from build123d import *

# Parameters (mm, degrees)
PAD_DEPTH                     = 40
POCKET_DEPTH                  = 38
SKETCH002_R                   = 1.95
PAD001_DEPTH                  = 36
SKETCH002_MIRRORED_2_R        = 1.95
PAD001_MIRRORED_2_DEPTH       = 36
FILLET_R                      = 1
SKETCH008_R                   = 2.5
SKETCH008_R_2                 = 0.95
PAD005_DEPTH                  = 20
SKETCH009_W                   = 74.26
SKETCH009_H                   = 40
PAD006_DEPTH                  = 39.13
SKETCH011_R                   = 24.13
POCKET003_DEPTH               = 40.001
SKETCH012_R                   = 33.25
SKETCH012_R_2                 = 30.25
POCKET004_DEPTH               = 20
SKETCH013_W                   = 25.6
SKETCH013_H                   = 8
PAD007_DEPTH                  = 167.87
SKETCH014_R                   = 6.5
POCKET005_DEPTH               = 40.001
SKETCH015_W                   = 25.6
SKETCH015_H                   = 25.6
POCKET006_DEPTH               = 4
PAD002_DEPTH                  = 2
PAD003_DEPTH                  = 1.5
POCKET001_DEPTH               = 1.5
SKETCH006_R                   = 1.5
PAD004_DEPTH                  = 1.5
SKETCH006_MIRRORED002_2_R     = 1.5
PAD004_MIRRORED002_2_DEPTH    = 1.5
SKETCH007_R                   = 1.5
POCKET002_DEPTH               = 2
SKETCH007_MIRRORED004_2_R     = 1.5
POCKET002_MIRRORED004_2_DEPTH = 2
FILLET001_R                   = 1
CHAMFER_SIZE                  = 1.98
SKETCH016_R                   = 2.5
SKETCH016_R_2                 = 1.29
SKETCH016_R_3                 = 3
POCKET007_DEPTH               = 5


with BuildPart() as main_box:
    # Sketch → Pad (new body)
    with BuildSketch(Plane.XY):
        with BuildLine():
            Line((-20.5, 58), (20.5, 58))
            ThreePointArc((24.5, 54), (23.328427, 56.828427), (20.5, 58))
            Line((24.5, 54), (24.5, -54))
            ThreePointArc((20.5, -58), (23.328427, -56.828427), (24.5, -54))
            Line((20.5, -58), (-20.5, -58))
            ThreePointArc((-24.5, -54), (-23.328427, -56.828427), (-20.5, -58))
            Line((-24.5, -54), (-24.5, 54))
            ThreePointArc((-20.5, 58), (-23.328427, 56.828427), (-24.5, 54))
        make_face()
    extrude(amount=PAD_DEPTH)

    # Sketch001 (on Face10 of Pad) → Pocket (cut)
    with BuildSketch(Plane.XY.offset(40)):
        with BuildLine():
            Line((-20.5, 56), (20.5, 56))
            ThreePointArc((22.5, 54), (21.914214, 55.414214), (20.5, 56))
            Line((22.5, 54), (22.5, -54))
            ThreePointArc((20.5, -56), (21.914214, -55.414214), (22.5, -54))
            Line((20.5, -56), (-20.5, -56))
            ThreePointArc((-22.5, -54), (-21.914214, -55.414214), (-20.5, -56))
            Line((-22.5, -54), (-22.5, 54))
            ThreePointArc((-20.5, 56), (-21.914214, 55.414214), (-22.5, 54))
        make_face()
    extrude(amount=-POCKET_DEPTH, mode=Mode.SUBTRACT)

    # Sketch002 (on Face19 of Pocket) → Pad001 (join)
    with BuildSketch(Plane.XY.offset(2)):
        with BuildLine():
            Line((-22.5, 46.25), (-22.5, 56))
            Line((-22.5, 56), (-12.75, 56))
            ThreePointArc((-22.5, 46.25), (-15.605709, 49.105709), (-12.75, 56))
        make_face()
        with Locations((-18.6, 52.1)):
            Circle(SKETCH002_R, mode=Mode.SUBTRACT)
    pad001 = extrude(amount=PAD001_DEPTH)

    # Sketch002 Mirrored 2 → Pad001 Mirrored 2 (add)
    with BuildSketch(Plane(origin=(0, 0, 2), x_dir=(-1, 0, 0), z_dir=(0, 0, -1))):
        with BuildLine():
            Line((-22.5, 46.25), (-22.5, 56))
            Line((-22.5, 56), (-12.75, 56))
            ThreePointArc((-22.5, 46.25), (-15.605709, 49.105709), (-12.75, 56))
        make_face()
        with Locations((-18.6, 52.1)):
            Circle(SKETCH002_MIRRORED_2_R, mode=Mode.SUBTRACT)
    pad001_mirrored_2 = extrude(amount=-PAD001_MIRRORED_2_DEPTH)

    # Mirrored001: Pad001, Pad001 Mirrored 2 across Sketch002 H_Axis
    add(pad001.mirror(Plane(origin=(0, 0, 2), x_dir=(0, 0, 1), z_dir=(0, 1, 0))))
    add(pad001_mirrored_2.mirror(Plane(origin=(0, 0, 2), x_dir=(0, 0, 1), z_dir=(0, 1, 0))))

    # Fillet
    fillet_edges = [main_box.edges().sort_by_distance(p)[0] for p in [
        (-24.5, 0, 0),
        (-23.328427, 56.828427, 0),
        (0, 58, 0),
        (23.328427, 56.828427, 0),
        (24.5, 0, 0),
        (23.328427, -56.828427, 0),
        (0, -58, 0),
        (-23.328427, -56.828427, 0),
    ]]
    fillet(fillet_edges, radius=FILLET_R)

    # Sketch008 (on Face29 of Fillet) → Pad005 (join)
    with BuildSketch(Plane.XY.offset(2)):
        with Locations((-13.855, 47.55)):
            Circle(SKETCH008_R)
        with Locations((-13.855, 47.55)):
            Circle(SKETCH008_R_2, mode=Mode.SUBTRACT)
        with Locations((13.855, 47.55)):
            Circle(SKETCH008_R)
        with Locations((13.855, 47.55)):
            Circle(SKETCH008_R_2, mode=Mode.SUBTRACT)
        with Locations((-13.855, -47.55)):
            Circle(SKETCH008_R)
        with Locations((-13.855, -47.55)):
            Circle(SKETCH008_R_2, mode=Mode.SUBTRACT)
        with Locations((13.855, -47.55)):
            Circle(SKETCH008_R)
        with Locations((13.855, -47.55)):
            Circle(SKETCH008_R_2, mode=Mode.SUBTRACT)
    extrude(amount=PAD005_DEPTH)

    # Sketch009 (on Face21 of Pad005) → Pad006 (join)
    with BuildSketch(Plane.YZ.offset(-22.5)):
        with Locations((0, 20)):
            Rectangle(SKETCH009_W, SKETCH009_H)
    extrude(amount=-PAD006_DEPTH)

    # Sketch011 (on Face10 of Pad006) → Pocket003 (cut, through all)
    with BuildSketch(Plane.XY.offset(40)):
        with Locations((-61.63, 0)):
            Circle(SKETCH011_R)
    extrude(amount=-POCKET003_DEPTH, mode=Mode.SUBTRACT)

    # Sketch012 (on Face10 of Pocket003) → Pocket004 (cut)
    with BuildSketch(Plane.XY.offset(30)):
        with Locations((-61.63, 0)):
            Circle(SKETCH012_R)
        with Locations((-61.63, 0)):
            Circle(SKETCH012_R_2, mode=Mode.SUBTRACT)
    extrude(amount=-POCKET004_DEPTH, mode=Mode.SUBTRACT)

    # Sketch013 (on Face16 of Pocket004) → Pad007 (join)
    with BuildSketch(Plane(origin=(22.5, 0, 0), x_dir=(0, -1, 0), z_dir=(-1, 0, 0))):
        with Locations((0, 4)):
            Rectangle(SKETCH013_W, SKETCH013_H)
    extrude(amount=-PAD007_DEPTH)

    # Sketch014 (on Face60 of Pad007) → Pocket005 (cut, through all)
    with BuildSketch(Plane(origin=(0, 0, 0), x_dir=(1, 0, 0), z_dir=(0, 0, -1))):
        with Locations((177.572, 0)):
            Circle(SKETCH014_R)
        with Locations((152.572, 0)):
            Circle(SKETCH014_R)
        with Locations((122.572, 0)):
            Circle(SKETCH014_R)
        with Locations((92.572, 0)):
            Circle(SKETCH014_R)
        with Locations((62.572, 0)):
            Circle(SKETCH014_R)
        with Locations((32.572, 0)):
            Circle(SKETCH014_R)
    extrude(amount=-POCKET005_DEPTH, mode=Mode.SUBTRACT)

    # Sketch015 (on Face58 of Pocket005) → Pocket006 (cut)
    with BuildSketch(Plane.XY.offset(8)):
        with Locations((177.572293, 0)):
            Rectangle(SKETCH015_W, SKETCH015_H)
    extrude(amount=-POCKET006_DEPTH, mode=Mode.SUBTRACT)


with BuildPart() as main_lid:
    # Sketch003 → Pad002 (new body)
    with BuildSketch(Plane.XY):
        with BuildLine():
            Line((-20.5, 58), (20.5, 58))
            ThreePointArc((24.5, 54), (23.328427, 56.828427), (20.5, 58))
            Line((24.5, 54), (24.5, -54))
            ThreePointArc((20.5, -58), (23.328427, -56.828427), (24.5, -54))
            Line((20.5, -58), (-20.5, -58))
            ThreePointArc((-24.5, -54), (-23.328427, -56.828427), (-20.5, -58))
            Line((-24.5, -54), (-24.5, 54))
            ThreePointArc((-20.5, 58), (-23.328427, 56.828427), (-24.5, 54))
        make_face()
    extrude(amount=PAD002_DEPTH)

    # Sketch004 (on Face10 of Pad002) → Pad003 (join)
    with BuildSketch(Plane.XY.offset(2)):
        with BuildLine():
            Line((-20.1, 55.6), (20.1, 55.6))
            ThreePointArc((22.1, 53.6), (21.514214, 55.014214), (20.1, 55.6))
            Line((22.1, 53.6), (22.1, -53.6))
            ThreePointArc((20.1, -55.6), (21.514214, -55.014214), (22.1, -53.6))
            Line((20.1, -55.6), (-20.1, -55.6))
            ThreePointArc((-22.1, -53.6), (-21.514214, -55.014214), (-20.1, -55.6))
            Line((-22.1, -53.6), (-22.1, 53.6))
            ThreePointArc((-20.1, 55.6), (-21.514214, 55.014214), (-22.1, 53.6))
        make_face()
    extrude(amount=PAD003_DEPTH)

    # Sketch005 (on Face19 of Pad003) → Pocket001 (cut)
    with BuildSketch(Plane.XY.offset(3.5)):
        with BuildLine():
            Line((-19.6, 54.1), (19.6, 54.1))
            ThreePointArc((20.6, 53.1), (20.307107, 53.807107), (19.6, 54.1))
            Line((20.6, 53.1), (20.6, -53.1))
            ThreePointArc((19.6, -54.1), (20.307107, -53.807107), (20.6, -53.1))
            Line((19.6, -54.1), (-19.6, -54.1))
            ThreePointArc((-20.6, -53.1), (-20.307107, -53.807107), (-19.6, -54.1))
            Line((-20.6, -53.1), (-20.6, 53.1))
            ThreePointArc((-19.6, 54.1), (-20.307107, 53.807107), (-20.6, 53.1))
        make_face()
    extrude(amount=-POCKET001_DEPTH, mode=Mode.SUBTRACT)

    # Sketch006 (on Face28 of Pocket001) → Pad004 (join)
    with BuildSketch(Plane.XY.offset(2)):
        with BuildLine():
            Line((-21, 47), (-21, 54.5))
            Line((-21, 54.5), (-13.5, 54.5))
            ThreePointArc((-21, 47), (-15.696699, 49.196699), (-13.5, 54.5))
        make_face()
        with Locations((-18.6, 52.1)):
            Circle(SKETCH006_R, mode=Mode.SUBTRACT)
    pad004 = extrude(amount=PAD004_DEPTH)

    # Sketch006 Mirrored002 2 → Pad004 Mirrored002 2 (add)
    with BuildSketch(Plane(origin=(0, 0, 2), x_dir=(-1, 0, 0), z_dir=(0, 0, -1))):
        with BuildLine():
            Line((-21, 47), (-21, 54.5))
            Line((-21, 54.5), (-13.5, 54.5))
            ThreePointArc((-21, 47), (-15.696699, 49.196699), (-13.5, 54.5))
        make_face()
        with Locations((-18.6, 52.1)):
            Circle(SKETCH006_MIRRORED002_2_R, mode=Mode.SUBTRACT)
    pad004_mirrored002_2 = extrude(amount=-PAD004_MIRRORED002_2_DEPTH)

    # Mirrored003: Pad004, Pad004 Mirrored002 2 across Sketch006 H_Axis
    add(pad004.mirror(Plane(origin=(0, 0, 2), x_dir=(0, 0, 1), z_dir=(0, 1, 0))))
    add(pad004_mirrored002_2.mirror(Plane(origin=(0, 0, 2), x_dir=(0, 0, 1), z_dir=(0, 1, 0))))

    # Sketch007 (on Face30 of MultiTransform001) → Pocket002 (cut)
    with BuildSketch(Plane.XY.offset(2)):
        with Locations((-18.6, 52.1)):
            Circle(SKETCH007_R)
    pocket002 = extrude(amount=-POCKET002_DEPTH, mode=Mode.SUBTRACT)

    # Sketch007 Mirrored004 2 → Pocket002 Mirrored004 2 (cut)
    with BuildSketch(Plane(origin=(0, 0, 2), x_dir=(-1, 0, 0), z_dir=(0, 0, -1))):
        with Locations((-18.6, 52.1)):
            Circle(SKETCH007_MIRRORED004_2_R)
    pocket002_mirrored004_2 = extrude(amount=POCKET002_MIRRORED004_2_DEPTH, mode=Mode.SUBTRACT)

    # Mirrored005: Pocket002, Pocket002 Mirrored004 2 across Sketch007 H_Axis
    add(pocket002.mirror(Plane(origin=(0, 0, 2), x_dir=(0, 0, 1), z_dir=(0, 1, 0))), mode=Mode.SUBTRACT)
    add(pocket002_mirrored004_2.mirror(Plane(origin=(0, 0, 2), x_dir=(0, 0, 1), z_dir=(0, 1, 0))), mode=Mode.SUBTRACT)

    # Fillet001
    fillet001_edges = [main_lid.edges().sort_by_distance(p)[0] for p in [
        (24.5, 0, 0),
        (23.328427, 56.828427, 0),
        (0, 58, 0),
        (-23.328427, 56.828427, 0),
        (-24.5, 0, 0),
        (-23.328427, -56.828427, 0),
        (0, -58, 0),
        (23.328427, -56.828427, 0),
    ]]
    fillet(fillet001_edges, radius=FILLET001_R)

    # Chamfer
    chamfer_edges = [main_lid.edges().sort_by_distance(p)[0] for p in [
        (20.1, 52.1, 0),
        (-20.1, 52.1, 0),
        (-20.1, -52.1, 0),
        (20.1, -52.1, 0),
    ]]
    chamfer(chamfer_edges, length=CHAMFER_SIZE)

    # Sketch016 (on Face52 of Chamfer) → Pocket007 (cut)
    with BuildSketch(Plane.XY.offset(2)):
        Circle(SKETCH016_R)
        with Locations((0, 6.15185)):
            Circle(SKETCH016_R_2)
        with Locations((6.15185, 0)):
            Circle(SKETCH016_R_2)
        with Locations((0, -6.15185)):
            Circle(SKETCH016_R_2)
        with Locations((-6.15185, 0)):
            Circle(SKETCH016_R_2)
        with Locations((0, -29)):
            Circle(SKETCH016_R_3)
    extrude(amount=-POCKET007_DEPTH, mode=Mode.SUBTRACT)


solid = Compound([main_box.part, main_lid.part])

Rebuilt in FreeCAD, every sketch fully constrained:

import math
import FreeCAD as App
import Part
import Sketcher
Q = App.Units.Quantity


def edges_at(feature, points):
    """Names of the edges that pass closest to the given points."""
    edges = feature.Shape.Edges
    near = lambda p: min(range(len(edges)), key=lambda i: edges[i].distToShape(Part.Vertex(*p))[0])
    return sorted({f"Edge{near(p) + 1}" for p in points})

doc = App.newDocument("Part")
params = doc.addObject("Spreadsheet::Sheet", "Params")
for row, (alias, value) in enumerate([
    ("sketch1_radius", "4 mm"),
    ("sketch1_width", "41 mm"),
    ("sketch1_height", "108 mm"),
    ("pad1_length", "40 mm"),
    ("sketch2_radius", "1.999999 mm"),
    ("sketch2_width", "41 mm"),
    ("sketch2_height", "108 mm"),
    ("pocket1_length", "38 mm"),
    ("sketch3_diameter", "3.9 mm"),
    ("sketch3_radius", "9.75 mm"),
    ("pad2_length", "36 mm"),
    ("sketch4_diameter", "3.9 mm"),
    ("sketch4_radius", "9.75 mm"),
    ("pad3_length", "36 mm"),
    ("fillet_radius", "1 mm"),
    ("sketch5_diameter", "5 mm"),
    ("sketch5_diameter2", "1.9 mm"),
    ("pad4_length", "20 mm"),
    ("sketch6_height", "40 mm"),
    ("sketch6_width", "74.26 mm"),
    ("pad5_length", "39.13 mm"),
    ("sketch7_diameter", "48.26 mm"),
    ("sketch8_diameter", "66.5 mm"),
    ("sketch8_diameter2", "60.5 mm"),
    ("pocket3_length", "20 mm"),
    ("sketch9_height", "8 mm"),
    ("sketch9_width", "25.6 mm"),
    ("pad6_length", "167.87 mm"),
    ("sketch10_diameter", "13 mm"),
    ("sketch11_width", "25.6 mm"),
    ("pocket5_length", "4 mm"),
    ("sketch12_radius", "4 mm"),
    ("sketch12_width", "41 mm"),
    ("sketch12_height", "108 mm"),
    ("pad7_length", "2 mm"),
    ("sketch13_radius", "1.999999 mm"),
    ("sketch13_width", "40.2 mm"),
    ("sketch13_height", "107.2 mm"),
    ("pad8_length", "1.5 mm"),
    ("sketch14_radius", "0.999999 mm"),
    ("sketch14_width", "39.2 mm"),
    ("sketch14_height", "106.2 mm"),
    ("pocket6_length", "1.5 mm"),
    ("sketch15_diameter", "3 mm"),
    ("sketch15_radius", "7.5 mm"),
    ("pad9_length", "1.5 mm"),
    ("sketch16_diameter", "3 mm"),
    ("sketch16_radius", "7.5 mm"),
    ("pad10_length", "1.5 mm"),
    ("sketch17_diameter", "3 mm"),
    ("pocket7_length", "2 mm"),
    ("sketch18_diameter", "3 mm"),
    ("pocket8_length", "2 mm"),
    ("fillet2_radius", "1 mm"),
    ("chamfer_size", "1.98 mm"),
    ("sketch19_diameter", "5 mm"),
    ("sketch19_diameter2", "6 mm"),
    ("sketch19_diameter3", "2.58 mm"),
    ("pocket9_length", "5 mm"),
], start=1):
    params.set(f"A{row}", alias)
    params.set(f"B{row}", "=" + value)
    params.setAlias(f"B{row}", alias)

body = doc.addObject("PartDesign::Body", "Body")

sketch1 = doc.addObject("Sketcher::SketchObject", "Sketch")
body.addObject(sketch1)
sketch1.AttachmentSupport = (doc.XY_Plane, [""])
sketch1.MapMode = "FlatFace"
sketch1.addGeometry([
    Part.LineSegment(App.Vector(20.5, 58, 0), App.Vector(-20.5, 58, 0)),
    Part.ArcOfCircle(Part.Circle(App.Vector(-20.5, 54, 0), App.Vector(0, 0, 1), 4), math.radians(90), math.radians(180)),
    Part.LineSegment(App.Vector(-24.5, 54, 0), App.Vector(-24.5, -54, 0)),
    Part.ArcOfCircle(Part.Circle(App.Vector(-20.5, -54, 0), App.Vector(0, 0, 1), 4), math.radians(-180), math.radians(-90)),
    Part.LineSegment(App.Vector(-20.5, -58, 0), App.Vector(20.5, -58, 0)),
    Part.ArcOfCircle(Part.Circle(App.Vector(20.5, -54, 0), App.Vector(0, 0, 1), 4), math.radians(-90), math.radians(0)),
    Part.LineSegment(App.Vector(24.5, -54, 0), App.Vector(24.5, 54, 0)),
    Part.ArcOfCircle(Part.Circle(App.Vector(20.5, 54, 0), App.Vector(0, 0, 1), 4), math.radians(0), math.radians(90)),
], False)
sketch1.addConstraint([
    Sketcher.Constraint("Tangent", 0, 2, 1, 1),
    Sketcher.Constraint("Tangent", 1, 2, 2, 1),
    Sketcher.Constraint("Tangent", 2, 2, 3, 1),
    Sketcher.Constraint("Tangent", 3, 2, 4, 1),
    Sketcher.Constraint("Tangent", 4, 2, 5, 1),
    Sketcher.Constraint("Tangent", 5, 2, 6, 1),
    Sketcher.Constraint("Tangent", 6, 2, 7, 1),
    Sketcher.Constraint("Tangent", 7, 2, 0, 1),
    Sketcher.Constraint("Horizontal", 0),
    Sketcher.Constraint("Vertical", 2),
    Sketcher.Constraint("Horizontal", 4),
    Sketcher.Constraint("Vertical", 6),
    Sketcher.Constraint("Equal", 1, 3),
    Sketcher.Constraint("Equal", 3, 5),
    Sketcher.Constraint("Equal", 5, 7),
    Sketcher.Constraint("Symmetric", 1, 3, 5, 3, -1, 1),
    Sketcher.Constraint("Radius", 1, Q("4 mm")),
    Sketcher.Constraint("DistanceX", 0, 2, 0, 1, Q("41 mm")),
    Sketcher.Constraint("DistanceY", 2, 2, 2, 1, Q("108 mm")),
])
sketch1.setExpression("Constraints[16]", "Params.sketch1_radius")
sketch1.setExpression("Constraints[17]", "Params.sketch1_width")
sketch1.setExpression("Constraints[18]", "Params.sketch1_height")
pad1 = doc.addObject("PartDesign::Pad", "Pad")
body.addObject(pad1)
pad1.Profile = sketch1
pad1.setExpression("Length", "Params.pad1_length")

sketch2 = doc.addObject("Sketcher::SketchObject", "Sketch001")
body.addObject(sketch2)
sketch2.AttachmentSupport = (doc.XY_Plane, [""])
sketch2.MapMode = "FlatFace"
sketch2.AttachmentOffset = App.Placement(App.Vector(0, 0, 40), App.Rotation())
sketch2.addGeometry([
    Part.LineSegment(App.Vector(20.5, 56, 0), App.Vector(-20.5, 56, 0)),
    Part.ArcOfCircle(Part.Circle(App.Vector(-20.5, 54, 0), App.Vector(0, 0, 1), 2), math.radians(90), math.radians(180)),
    Part.LineSegment(App.Vector(-22.5, 54, 0), App.Vector(-22.5, -54, 0)),
    Part.ArcOfCircle(Part.Circle(App.Vector(-20.5, -54, 0), App.Vector(0, 0, 1), 2), math.radians(180), math.radians(270)),
    Part.LineSegment(App.Vector(-20.5, -56, 0), App.Vector(20.5, -56, 0)),
    Part.ArcOfCircle(Part.Circle(App.Vector(20.5, -54, 0), App.Vector(0, 0, 1), 2), math.radians(-90), math.radians(0)),
    Part.LineSegment(App.Vector(22.5, -54, 0), App.Vector(22.5, 54, 0)),
    Part.ArcOfCircle(Part.Circle(App.Vector(20.5, 54, 0), App.Vector(0, 0, 1), 2), math.radians(0), math.radians(90)),
], False)
sketch2.addConstraint([
    Sketcher.Constraint("Tangent", 0, 2, 1, 1),
    Sketcher.Constraint("Tangent", 1, 2, 2, 1),
    Sketcher.Constraint("Tangent", 2, 2, 3, 1),
    Sketcher.Constraint("Tangent", 3, 2, 4, 1),
    Sketcher.Constraint("Tangent", 4, 2, 5, 1),
    Sketcher.Constraint("Tangent", 5, 2, 6, 1),
    Sketcher.Constraint("Tangent", 6, 2, 7, 1),
    Sketcher.Constraint("Tangent", 7, 2, 0, 1),
    Sketcher.Constraint("Horizontal", 0),
    Sketcher.Constraint("Vertical", 2),
    Sketcher.Constraint("Horizontal", 4),
    Sketcher.Constraint("Vertical", 6),
    Sketcher.Constraint("Equal", 1, 3),
    Sketcher.Constraint("Equal", 3, 5),
    Sketcher.Constraint("Equal", 5, 7),
    Sketcher.Constraint("Symmetric", 1, 3, 5, 3, -1, 1),
    Sketcher.Constraint("Radius", 1, Q("1.999999 mm")),
    Sketcher.Constraint("DistanceX", 0, 2, 0, 1, Q("41 mm")),
    Sketcher.Constraint("DistanceY", 2, 2, 2, 1, Q("108 mm")),
])
sketch2.setExpression("Constraints[16]", "Params.sketch2_radius")
sketch2.setExpression("Constraints[17]", "Params.sketch2_width")
sketch2.setExpression("Constraints[18]", "Params.sketch2_height")
pocket1 = doc.addObject("PartDesign::Pocket", "Pocket")
body.addObject(pocket1)
pocket1.Profile = sketch2
pocket1.setExpression("Length", "Params.pocket1_length")

sketch3 = doc.addObject("Sketcher::SketchObject", "Sketch002")
body.addObject(sketch3)
sketch3.AttachmentSupport = (doc.XY_Plane, [""])
sketch3.MapMode = "FlatFace"
sketch3.AttachmentOffset = App.Placement(App.Vector(0, 0, 2), App.Rotation())
sketch3.addGeometry([
    Part.LineSegment(App.Vector(-22.5, 56, 0), App.Vector(-22.5, 46.2, 0)),
    Part.ArcOfCircle(Part.Circle(App.Vector(-22.5, 56, 0), App.Vector(0, 0, 1), 9.8), math.radians(-90), math.radians(0)),
    Part.LineSegment(App.Vector(-12.8, 56, 0), App.Vector(-22.5, 56, 0)),
    Part.Circle(App.Vector(-18.6, 52.1, 0), App.Vector(0, 0, 1), 1.9),
], False)
sketch3.addConstraint([
    Sketcher.Constraint("Coincident", 0, 2, 1, 1),
    Sketcher.Constraint("Coincident", 1, 2, 2, 1),
    Sketcher.Constraint("Coincident", 2, 2, 0, 1),
    Sketcher.Constraint("Vertical", 0),
    Sketcher.Constraint("Horizontal", 2),
    Sketcher.Constraint("Coincident", 2, 2, 1, 3),
    Sketcher.Constraint("Diameter", 3, Q("3.9 mm")),
    Sketcher.Constraint("Radius", 1, Q("9.75 mm")),
    Sketcher.Constraint("DistanceY", -1, 1, 1, 3, Q("56 mm")),
    Sketcher.Constraint("DistanceX", 1, 3, -1, 1, Q("22.5 mm")),
    Sketcher.Constraint("DistanceX", 3, 3, -1, 1, Q("18.6 mm")),
    Sketcher.Constraint("DistanceY", -1, 1, 3, 3, Q("52.1 mm")),
])
sketch3.setExpression("Constraints[6]", "Params.sketch3_diameter")
sketch3.setExpression("Constraints[7]", "Params.sketch3_radius")
pad2 = doc.addObject("PartDesign::Pad", "Pad001")
body.addObject(pad2)
pad2.Profile = sketch3
pad2.setExpression("Length", "Params.pad2_length")

sketch4 = doc.addObject("Sketcher::SketchObject", "Sketch003")
body.addObject(sketch4)
sketch4.AttachmentSupport = (doc.XY_Plane, [""])
sketch4.MapMode = "FlatFace"
sketch4.AttachmentOffset = App.Placement(App.Vector(0, 0, 2), App.Rotation())
sketch4.addGeometry([
    Part.LineSegment(App.Vector(22.5, 56, 0), App.Vector(22.5, 46.2, 0)),
    Part.ArcOfCircle(Part.Circle(App.Vector(22.5, 56, 0), App.Vector(0, 0, 1), 9.8), math.radians(-180), math.radians(-90)),
    Part.LineSegment(App.Vector(12.8, 56, 0), App.Vector(22.5, 56, 0)),
    Part.Circle(App.Vector(18.6, 52.1, 0), App.Vector(0, 0, 1), 1.9),
], False)
sketch4.addConstraint([
    Sketcher.Constraint("Coincident", 0, 2, 1, 2),
    Sketcher.Constraint("Coincident", 1, 1, 2, 1),
    Sketcher.Constraint("Coincident", 2, 2, 0, 1),
    Sketcher.Constraint("Vertical", 0),
    Sketcher.Constraint("Horizontal", 2),
    Sketcher.Constraint("Coincident", 2, 2, 1, 3),
    Sketcher.Constraint("Diameter", 3, Q("3.9 mm")),
    Sketcher.Constraint("Radius", 1, Q("9.75 mm")),
    Sketcher.Constraint("DistanceY", -1, 1, 1, 3, Q("56 mm")),
    Sketcher.Constraint("DistanceX", -1, 1, 1, 3, Q("22.5 mm")),
    Sketcher.Constraint("DistanceX", -1, 1, 3, 3, Q("18.6 mm")),
    Sketcher.Constraint("DistanceY", -1, 1, 3, 3, Q("52.1 mm")),
])
sketch4.setExpression("Constraints[6]", "Params.sketch4_diameter")
sketch4.setExpression("Constraints[7]", "Params.sketch4_radius")
pad3 = doc.addObject("PartDesign::Pad", "Pad002")
body.addObject(pad3)
pad3.Profile = sketch4
pad3.setExpression("Length", "Params.pad3_length")
doc.recompute()

mirrored = doc.addObject("PartDesign::Mirrored", "Mirrored")
body.addObject(mirrored)
mirrored.Originals = [pad2, pad3]
mirrored.MirrorPlane = (doc.XZ_Plane, [""])
body.Tip = mirrored
doc.recompute()

fillet = doc.addObject("PartDesign::Fillet", "Fillet")
body.addObject(fillet)
fillet.Base = (mirrored, edges_at(mirrored, [
    (-24.5, 0, 0),
    (-23.328, 56.828, 0),
    (0, 58, 0),
    (23.328, 56.828, 0),
    (24.5, 0, 0),
    (23.328, -56.828, 0),
    (0, -58, 0),
    (-23.328, -56.828, 0),
]))
fillet.setExpression("Radius", "Params.fillet_radius")

sketch5 = doc.addObject("Sketcher::SketchObject", "Sketch004")
body.addObject(sketch5)
sketch5.AttachmentSupport = (doc.XY_Plane, [""])
sketch5.MapMode = "FlatFace"
sketch5.AttachmentOffset = App.Placement(App.Vector(0, 0, 2), App.Rotation())
sketch5.addGeometry([
    Part.Circle(App.Vector(-13.9, 47.5, 0), App.Vector(0, 0, 1), 2.5),
    Part.Circle(App.Vector(-13.9, 47.5, 0), App.Vector(0, 0, 1), 0.9),
    Part.Circle(App.Vector(13.9, 47.5, 0), App.Vector(0, 0, 1), 2.5),
    Part.Circle(App.Vector(13.9, 47.5, 0), App.Vector(0, 0, 1), 0.9),
    Part.Circle(App.Vector(-13.9, -47.5, 0), App.Vector(0, 0, 1), 2.5),
    Part.Circle(App.Vector(-13.9, -47.5, 0), App.Vector(0, 0, 1), 0.9),
    Part.Circle(App.Vector(13.9, -47.5, 0), App.Vector(0, 0, 1), 2.5),
    Part.Circle(App.Vector(13.9, -47.5, 0), App.Vector(0, 0, 1), 0.9),
], False)
sketch5.addConstraint([
    Sketcher.Constraint("Coincident", 1, 3, 0, 3),
    Sketcher.Constraint("Coincident", 3, 3, 2, 3),
    Sketcher.Constraint("Coincident", 5, 3, 4, 3),
    Sketcher.Constraint("Coincident", 7, 3, 6, 3),
    Sketcher.Constraint("Equal", 0, 2),
    Sketcher.Constraint("Equal", 1, 3),
    Sketcher.Constraint("Equal", 2, 4),
    Sketcher.Constraint("Equal", 3, 5),
    Sketcher.Constraint("Equal", 4, 6),
    Sketcher.Constraint("Equal", 5, 7),
    Sketcher.Constraint("Symmetric", 2, 3, 4, 3, -1, 1),
    Sketcher.Constraint("Symmetric", 0, 3, 6, 3, -1, 1),
    Sketcher.Constraint("Symmetric", 0, 3, 2, 3, -2),
    Sketcher.Constraint("Diameter", 0, Q("5 mm")),
    Sketcher.Constraint("Diameter", 1, Q("1.9 mm")),
    Sketcher.Constraint("DistanceY", 4, 3, 0, 3, Q("95.1 mm")),
    Sketcher.Constraint("DistanceX", 0, 3, 2, 3, Q("27.71 mm")),
])
sketch5.setExpression("Constraints[13]", "Params.sketch5_diameter")
sketch5.setExpression("Constraints[14]", "Params.sketch5_diameter2")
pad4 = doc.addObject("PartDesign::Pad", "Pad003")
body.addObject(pad4)
pad4.Profile = sketch5
pad4.setExpression("Length", "Params.pad4_length")

sketch6 = doc.addObject("Sketcher::SketchObject", "Sketch005")
body.addObject(sketch6)
sketch6.AttachmentSupport = (doc.YZ_Plane, [""])
sketch6.MapMode = "FlatFace"
sketch6.AttachmentOffset = App.Placement(App.Vector(0, 0, -22.5), App.Rotation())
sketch6.addGeometry([
    Part.LineSegment(App.Vector(-37, 40, 0), App.Vector(-37, 0, 0)),
    Part.LineSegment(App.Vector(-37, 0, 0), App.Vector(37, 0, 0)),
    Part.LineSegment(App.Vector(37, 0, 0), App.Vector(37, 40, 0)),
    Part.LineSegment(App.Vector(37, 40, 0), App.Vector(-37, 40, 0)),
], False)
sketch6.addConstraint([
    Sketcher.Constraint("Coincident", 0, 2, 1, 1),
    Sketcher.Constraint("Coincident", 1, 2, 2, 1),
    Sketcher.Constraint("Coincident", 2, 2, 3, 1),
    Sketcher.Constraint("Coincident", 3, 2, 0, 1),
    Sketcher.Constraint("Vertical", 0),
    Sketcher.Constraint("Horizontal", 1),
    Sketcher.Constraint("Vertical", 2),
    Sketcher.Constraint("Horizontal", 3),
    Sketcher.Constraint("Symmetric", 0, 2, 1, 2, -1, 1),
    Sketcher.Constraint("DistanceY", 0, 2, 0, 1, Q("40 mm")),
    Sketcher.Constraint("DistanceX", 1, 1, 1, 2, Q("74.26 mm")),
])
sketch6.setExpression("Constraints[9]", "Params.sketch6_height")
sketch6.setExpression("Constraints[10]", "Params.sketch6_width")
pad5 = doc.addObject("PartDesign::Pad", "Pad004")
body.addObject(pad5)
pad5.Profile = sketch6
pad5.setExpression("Length", "Params.pad5_length")
pad5.Reversed = True

sketch7 = doc.addObject("Sketcher::SketchObject", "Sketch006")
body.addObject(sketch7)
sketch7.AttachmentSupport = (doc.XY_Plane, [""])
sketch7.MapMode = "FlatFace"
sketch7.AttachmentOffset = App.Placement(App.Vector(0, 0, 40), App.Rotation())
sketch7.addGeometry(Part.Circle(App.Vector(-62, 0, 0), App.Vector(0, 0, 1), 24), False)
sketch7.addConstraint([
    Sketcher.Constraint("PointOnObject", 0, 3, -1),
    Sketcher.Constraint("Diameter", 0, Q("48.26 mm")),
    Sketcher.Constraint("DistanceX", 0, 3, -1, 1, Q("61.63 mm")),
])
sketch7.setExpression("Constraints[1]", "Params.sketch7_diameter")
pocket2 = doc.addObject("PartDesign::Pocket", "Pocket001")
body.addObject(pocket2)
pocket2.Profile = sketch7
pocket2.Type = "ThroughAll"

sketch8 = doc.addObject("Sketcher::SketchObject", "Sketch007")
body.addObject(sketch8)
sketch8.AttachmentSupport = (doc.XY_Plane, [""])
sketch8.MapMode = "FlatFace"
sketch8.AttachmentOffset = App.Placement(App.Vector(0, 0, 30), App.Rotation())
sketch8.addGeometry([
    Part.Circle(App.Vector(-62, 0, 0), App.Vector(0, 0, 1), 33),
    Part.Circle(App.Vector(-62, 0, 0), App.Vector(0, 0, 1), 30),
], False)
sketch8.addConstraint([
    Sketcher.Constraint("Coincident", 1, 3, 0, 3),
    Sketcher.Constraint("PointOnObject", 0, 3, -1),
    Sketcher.Constraint("Diameter", 0, Q("66.5 mm")),
    Sketcher.Constraint("Diameter", 1, Q("60.5 mm")),
    Sketcher.Constraint("DistanceX", 0, 3, -1, 1, Q("61.63 mm")),
])
sketch8.setExpression("Constraints[2]", "Params.sketch8_diameter")
sketch8.setExpression("Constraints[3]", "Params.sketch8_diameter2")
pocket3 = doc.addObject("PartDesign::Pocket", "Pocket002")
body.addObject(pocket3)
pocket3.Profile = sketch8
pocket3.setExpression("Length", "Params.pocket3_length")

sketch9 = doc.addObject("Sketcher::SketchObject", "Sketch008")
body.addObject(sketch9)
sketch9.AttachmentSupport = (doc.YZ_Plane, [""])
sketch9.MapMode = "FlatFace"
sketch9.AttachmentOffset = App.Placement(App.Vector(0, 0, 22.5), App.Rotation())
sketch9.addGeometry([
    Part.LineSegment(App.Vector(13, 8, 0), App.Vector(13, 0, 0)),
    Part.LineSegment(App.Vector(13, 0, 0), App.Vector(-13, 0, 0)),
    Part.LineSegment(App.Vector(-13, 0, 0), App.Vector(-13, 8, 0)),
    Part.LineSegment(App.Vector(-13, 8, 0), App.Vector(13, 8, 0)),
], False)
sketch9.addConstraint([
    Sketcher.Constraint("Coincident", 0, 2, 1, 1),
    Sketcher.Constraint("Coincident", 1, 2, 2, 1),
    Sketcher.Constraint("Coincident", 2, 2, 3, 1),
    Sketcher.Constraint("Coincident", 3, 2, 0, 1),
    Sketcher.Constraint("Vertical", 0),
    Sketcher.Constraint("Horizontal", 1),
    Sketcher.Constraint("Vertical", 2),
    Sketcher.Constraint("Horizontal", 3),
    Sketcher.Constraint("Symmetric", 0, 2, 1, 2, -1, 1),
    Sketcher.Constraint("DistanceY", 0, 2, 0, 1, Q("8 mm")),
    Sketcher.Constraint("DistanceX", 1, 2, 1, 1, Q("25.6 mm")),
])
sketch9.setExpression("Constraints[9]", "Params.sketch9_height")
sketch9.setExpression("Constraints[10]", "Params.sketch9_width")
pad6 = doc.addObject("PartDesign::Pad", "Pad005")
body.addObject(pad6)
pad6.Profile = sketch9
pad6.setExpression("Length", "Params.pad6_length")

sketch10 = doc.addObject("Sketcher::SketchObject", "Sketch009")
body.addObject(sketch10)
sketch10.AttachmentSupport = (doc.XY_Plane, [""])
sketch10.MapMode = "FlatFace"
sketch10.addGeometry([
    Part.Circle(App.Vector(178, 0, 0), App.Vector(0, 0, 1), 6),
    Part.Circle(App.Vector(153, 0, 0), App.Vector(0, 0, 1), 6),
    Part.Circle(App.Vector(123, 0, 0), App.Vector(0, 0, 1), 6),
    Part.Circle(App.Vector(93, 0, 0), App.Vector(0, 0, 1), 6),
    Part.Circle(App.Vector(63, 0, 0), App.Vector(0, 0, 1), 6),
    Part.Circle(App.Vector(33, 0, 0), App.Vector(0, 0, 1), 6),
], False)
sketch10.addConstraint([
    Sketcher.Constraint("Equal", 0, 1),
    Sketcher.Constraint("Equal", 1, 2),
    Sketcher.Constraint("Equal", 2, 3),
    Sketcher.Constraint("Equal", 3, 4),
    Sketcher.Constraint("Equal", 4, 5),
    Sketcher.Constraint("PointOnObject", 0, 3, -1),
    Sketcher.Constraint("PointOnObject", 1, 3, -1),
    Sketcher.Constraint("PointOnObject", 2, 3, -1),
    Sketcher.Constraint("PointOnObject", 3, 3, -1),
    Sketcher.Constraint("PointOnObject", 4, 3, -1),
    Sketcher.Constraint("PointOnObject", 5, 3, -1),
    Sketcher.Constraint("Diameter", 0, Q("13 mm")),
    Sketcher.Constraint("DistanceX", 1, 3, 0, 3, Q("25 mm")),
    Sketcher.Constraint("DistanceX", 2, 3, 1, 3, Q("30 mm")),
    Sketcher.Constraint("DistanceX", 3, 3, 2, 3, Q("30 mm")),
    Sketcher.Constraint("DistanceX", 4, 3, 3, 3, Q("30 mm")),
    Sketcher.Constraint("DistanceX", 5, 3, 4, 3, Q("30 mm")),
    Sketcher.Constraint("DistanceX", -1, 1, 0, 3, Q("177.572 mm")),
])
sketch10.setExpression("Constraints[11]", "Params.sketch10_diameter")
pocket4 = doc.addObject("PartDesign::Pocket", "Pocket003")
body.addObject(pocket4)
pocket4.Profile = sketch10
pocket4.Type = "ThroughAll"
pocket4.Reversed = True

sketch11 = doc.addObject("Sketcher::SketchObject", "Sketch010")
body.addObject(sketch11)
sketch11.AttachmentSupport = (doc.XY_Plane, [""])
sketch11.MapMode = "FlatFace"
sketch11.AttachmentOffset = App.Placement(App.Vector(0, 0, 8), App.Rotation())
sketch11.addGeometry([
    Part.LineSegment(App.Vector(165, 13, 0), App.Vector(165, -13, 0)),
    Part.LineSegment(App.Vector(165, -13, 0), App.Vector(190, -13, 0)),
    Part.LineSegment(App.Vector(190, -13, 0), App.Vector(190, 13, 0)),
    Part.LineSegment(App.Vector(190, 13, 0), App.Vector(165, 13, 0)),
], False)
sketch11.addConstraint([
    Sketcher.Constraint("Coincident", 0, 2, 1, 1),
    Sketcher.Constraint("Coincident", 1, 2, 2, 1),
    Sketcher.Constraint("Coincident", 2, 2, 3, 1),
    Sketcher.Constraint("Coincident", 3, 2, 0, 1),
    Sketcher.Constraint("Vertical", 0),
    Sketcher.Constraint("Horizontal", 1),
    Sketcher.Constraint("Vertical", 2),
    Sketcher.Constraint("Horizontal", 3),
    Sketcher.Constraint("Equal", 3, 0),
    Sketcher.Constraint("DistanceX", 1, 1, 1, 2, Q("25.6 mm")),
    Sketcher.Constraint("DistanceY", 0, 2, -1, 1, Q("12.8 mm")),
    Sketcher.Constraint("DistanceX", -1, 1, 0, 2, Q("164.772293 mm")),
])
sketch11.setExpression("Constraints[9]", "Params.sketch11_width")
pocket5 = doc.addObject("PartDesign::Pocket", "Pocket004")
body.addObject(pocket5)
pocket5.Profile = sketch11
pocket5.setExpression("Length", "Params.pocket5_length")
body2 = doc.addObject("PartDesign::Body", "Body001")

sketch12 = doc.addObject("Sketcher::SketchObject", "Sketch011")
body2.addObject(sketch12)
sketch12.AttachmentSupport = (doc.getObject("XY_Plane001"), [""])
sketch12.MapMode = "FlatFace"
sketch12.addGeometry([
    Part.LineSegment(App.Vector(20.5, 58, 0), App.Vector(-20.5, 58, 0)),
    Part.ArcOfCircle(Part.Circle(App.Vector(-20.5, 54, 0), App.Vector(0, 0, 1), 4), math.radians(90), math.radians(180)),
    Part.LineSegment(App.Vector(-24.5, 54, 0), App.Vector(-24.5, -54, 0)),
    Part.ArcOfCircle(Part.Circle(App.Vector(-20.5, -54, 0), App.Vector(0, 0, 1), 4), math.radians(-180), math.radians(-90)),
    Part.LineSegment(App.Vector(-20.5, -58, 0), App.Vector(20.5, -58, 0)),
    Part.ArcOfCircle(Part.Circle(App.Vector(20.5, -54, 0), App.Vector(0, 0, 1), 4), math.radians(-90), math.radians(0)),
    Part.LineSegment(App.Vector(24.5, -54, 0), App.Vector(24.5, 54, 0)),
    Part.ArcOfCircle(Part.Circle(App.Vector(20.5, 54, 0), App.Vector(0, 0, 1), 4), math.radians(0), math.radians(90)),
], False)
sketch12.addConstraint([
    Sketcher.Constraint("Tangent", 0, 2, 1, 1),
    Sketcher.Constraint("Tangent", 1, 2, 2, 1),
    Sketcher.Constraint("Tangent", 2, 2, 3, 1),
    Sketcher.Constraint("Tangent", 3, 2, 4, 1),
    Sketcher.Constraint("Tangent", 4, 2, 5, 1),
    Sketcher.Constraint("Tangent", 5, 2, 6, 1),
    Sketcher.Constraint("Tangent", 6, 2, 7, 1),
    Sketcher.Constraint("Tangent", 7, 2, 0, 1),
    Sketcher.Constraint("Horizontal", 0),
    Sketcher.Constraint("Vertical", 2),
    Sketcher.Constraint("Horizontal", 4),
    Sketcher.Constraint("Vertical", 6),
    Sketcher.Constraint("Equal", 1, 3),
    Sketcher.Constraint("Equal", 3, 5),
    Sketcher.Constraint("Equal", 5, 7),
    Sketcher.Constraint("Symmetric", 1, 3, 5, 3, -1, 1),
    Sketcher.Constraint("Radius", 1, Q("4 mm")),
    Sketcher.Constraint("DistanceX", 0, 2, 0, 1, Q("41 mm")),
    Sketcher.Constraint("DistanceY", 2, 2, 2, 1, Q("108 mm")),
])
sketch12.setExpression("Constraints[16]", "Params.sketch12_radius")
sketch12.setExpression("Constraints[17]", "Params.sketch12_width")
sketch12.setExpression("Constraints[18]", "Params.sketch12_height")
pad7 = doc.addObject("PartDesign::Pad", "Pad006")
body2.addObject(pad7)
pad7.Profile = sketch12
pad7.setExpression("Length", "Params.pad7_length")

sketch13 = doc.addObject("Sketcher::SketchObject", "Sketch012")
body2.addObject(sketch13)
sketch13.AttachmentSupport = (doc.getObject("XY_Plane001"), [""])
sketch13.MapMode = "FlatFace"
sketch13.AttachmentOffset = App.Placement(App.Vector(0, 0, 2), App.Rotation())
sketch13.addGeometry([
    Part.LineSegment(App.Vector(20.1, 55.6, 0), App.Vector(-20.1, 55.6, 0)),
    Part.ArcOfCircle(Part.Circle(App.Vector(-20.1, 53.6, 0), App.Vector(0, 0, 1), 2), math.radians(90), math.radians(180)),
    Part.LineSegment(App.Vector(-22.1, 53.6, 0), App.Vector(-22.1, -53.6, 0)),
    Part.ArcOfCircle(Part.Circle(App.Vector(-20.1, -53.6, 0), App.Vector(0, 0, 1), 2), math.radians(180), math.radians(270)),
    Part.LineSegment(App.Vector(-20.1, -55.6, 0), App.Vector(20.1, -55.6, 0)),
    Part.ArcOfCircle(Part.Circle(App.Vector(20.1, -53.6, 0), App.Vector(0, 0, 1), 2), math.radians(-90), math.radians(0)),
    Part.LineSegment(App.Vector(22.1, -53.6, 0), App.Vector(22.1, 53.6, 0)),
    Part.ArcOfCircle(Part.Circle(App.Vector(20.1, 53.6, 0), App.Vector(0, 0, 1), 2), math.radians(0), math.radians(90)),
], False)
sketch13.addConstraint([
    Sketcher.Constraint("Tangent", 0, 2, 1, 1),
    Sketcher.Constraint("Tangent", 1, 2, 2, 1),
    Sketcher.Constraint("Tangent", 2, 2, 3, 1),
    Sketcher.Constraint("Tangent", 3, 2, 4, 1),
    Sketcher.Constraint("Tangent", 4, 2, 5, 1),
    Sketcher.Constraint("Tangent", 5, 2, 6, 1),
    Sketcher.Constraint("Tangent", 6, 2, 7, 1),
    Sketcher.Constraint("Tangent", 7, 2, 0, 1),
    Sketcher.Constraint("Horizontal", 0),
    Sketcher.Constraint("Vertical", 2),
    Sketcher.Constraint("Horizontal", 4),
    Sketcher.Constraint("Vertical", 6),
    Sketcher.Constraint("Equal", 1, 3),
    Sketcher.Constraint("Equal", 3, 5),
    Sketcher.Constraint("Equal", 5, 7),
    Sketcher.Constraint("Symmetric", 1, 3, 5, 3, -1, 1),
    Sketcher.Constraint("Radius", 1, Q("1.999999 mm")),
    Sketcher.Constraint("DistanceX", 0, 2, 0, 1, Q("40.2 mm")),
    Sketcher.Constraint("DistanceY", 2, 2, 2, 1, Q("107.2 mm")),
])
sketch13.setExpression("Constraints[16]", "Params.sketch13_radius")
sketch13.setExpression("Constraints[17]", "Params.sketch13_width")
sketch13.setExpression("Constraints[18]", "Params.sketch13_height")
pad8 = doc.addObject("PartDesign::Pad", "Pad007")
body2.addObject(pad8)
pad8.Profile = sketch13
pad8.setExpression("Length", "Params.pad8_length")

sketch14 = doc.addObject("Sketcher::SketchObject", "Sketch013")
body2.addObject(sketch14)
sketch14.AttachmentSupport = (doc.getObject("XY_Plane001"), [""])
sketch14.MapMode = "FlatFace"
sketch14.AttachmentOffset = App.Placement(App.Vector(0, 0, 3.5), App.Rotation())
sketch14.addGeometry([
    Part.LineSegment(App.Vector(19.6, 54.1, 0), App.Vector(-19.6, 54.1, 0)),
    Part.ArcOfCircle(Part.Circle(App.Vector(-19.6, 53.1, 0), App.Vector(0, 0, 1), 1), math.radians(90), math.radians(180)),
    Part.LineSegment(App.Vector(-20.6, 53.1, 0), App.Vector(-20.6, -53.1, 0)),
    Part.ArcOfCircle(Part.Circle(App.Vector(-19.6, -53.1, 0), App.Vector(0, 0, 1), 1), math.radians(180), math.radians(270)),
    Part.LineSegment(App.Vector(-19.6, -54.1, 0), App.Vector(19.6, -54.1, 0)),
    Part.ArcOfCircle(Part.Circle(App.Vector(19.6, -53.1, 0), App.Vector(0, 0, 1), 1), math.radians(-90), math.radians(0)),
    Part.LineSegment(App.Vector(20.6, -53.1, 0), App.Vector(20.6, 53.1, 0)),
    Part.ArcOfCircle(Part.Circle(App.Vector(19.6, 53.1, 0), App.Vector(0, 0, 1), 1), math.radians(0), math.radians(90)),
], False)
sketch14.addConstraint([
    Sketcher.Constraint("Tangent", 0, 2, 1, 1),
    Sketcher.Constraint("Tangent", 1, 2, 2, 1),
    Sketcher.Constraint("Tangent", 2, 2, 3, 1),
    Sketcher.Constraint("Tangent", 3, 2, 4, 1),
    Sketcher.Constraint("Tangent", 4, 2, 5, 1),
    Sketcher.Constraint("Tangent", 5, 2, 6, 1),
    Sketcher.Constraint("Tangent", 6, 2, 7, 1),
    Sketcher.Constraint("Tangent", 7, 2, 0, 1),
    Sketcher.Constraint("Horizontal", 0),
    Sketcher.Constraint("Vertical", 2),
    Sketcher.Constraint("Horizontal", 4),
    Sketcher.Constraint("Vertical", 6),
    Sketcher.Constraint("Equal", 1, 3),
    Sketcher.Constraint("Equal", 3, 5),
    Sketcher.Constraint("Equal", 5, 7),
    Sketcher.Constraint("Symmetric", 1, 3, 5, 3, -1, 1),
    Sketcher.Constraint("Radius", 1, Q("0.999999 mm")),
    Sketcher.Constraint("DistanceX", 0, 2, 0, 1, Q("39.2 mm")),
    Sketcher.Constraint("DistanceY", 2, 2, 2, 1, Q("106.2 mm")),
])
sketch14.setExpression("Constraints[16]", "Params.sketch14_radius")
sketch14.setExpression("Constraints[17]", "Params.sketch14_width")
sketch14.setExpression("Constraints[18]", "Params.sketch14_height")
pocket6 = doc.addObject("PartDesign::Pocket", "Pocket005")
body2.addObject(pocket6)
pocket6.Profile = sketch14
pocket6.setExpression("Length", "Params.pocket6_length")

sketch15 = doc.addObject("Sketcher::SketchObject", "Sketch014")
body2.addObject(sketch15)
sketch15.AttachmentSupport = (doc.getObject("XY_Plane001"), [""])
sketch15.MapMode = "FlatFace"
sketch15.AttachmentOffset = App.Placement(App.Vector(0, 0, 2), App.Rotation())
sketch15.addGeometry([
    Part.LineSegment(App.Vector(-21, 54.5, 0), App.Vector(-21, 47, 0)),
    Part.ArcOfCircle(Part.Circle(App.Vector(-21, 54.5, 0), App.Vector(0, 0, 1), 7.5), math.radians(-90), math.radians(0)),
    Part.LineSegment(App.Vector(-13.5, 54.5, 0), App.Vector(-21, 54.5, 0)),
    Part.Circle(App.Vector(-18.6, 52.1, 0), App.Vector(0, 0, 1), 1.5),
], False)
sketch15.addConstraint([
    Sketcher.Constraint("Coincident", 0, 2, 1, 1),
    Sketcher.Constraint("Coincident", 1, 2, 2, 1),
    Sketcher.Constraint("Coincident", 2, 2, 0, 1),
    Sketcher.Constraint("Vertical", 0),
    Sketcher.Constraint("Horizontal", 2),
    Sketcher.Constraint("Coincident", 2, 2, 1, 3),
    Sketcher.Constraint("Diameter", 3, Q("3 mm")),
    Sketcher.Constraint("Radius", 1, Q("7.5 mm")),
    Sketcher.Constraint("DistanceX", 1, 3, -1, 1, Q("21 mm")),
    Sketcher.Constraint("DistanceY", -1, 1, 0, 2, Q("47 mm")),
    Sketcher.Constraint("DistanceX", 3, 3, -1, 1, Q("18.6 mm")),
    Sketcher.Constraint("DistanceY", -1, 1, 3, 3, Q("52.1 mm")),
])
sketch15.setExpression("Constraints[6]", "Params.sketch15_diameter")
sketch15.setExpression("Constraints[7]", "Params.sketch15_radius")
pad9 = doc.addObject("PartDesign::Pad", "Pad008")
body2.addObject(pad9)
pad9.Profile = sketch15
pad9.setExpression("Length", "Params.pad9_length")

sketch16 = doc.addObject("Sketcher::SketchObject", "Sketch015")
body2.addObject(sketch16)
sketch16.AttachmentSupport = (doc.getObject("XY_Plane001"), [""])
sketch16.MapMode = "FlatFace"
sketch16.AttachmentOffset = App.Placement(App.Vector(0, 0, 2), App.Rotation())
sketch16.addGeometry([
    Part.LineSegment(App.Vector(21, 54.5, 0), App.Vector(21, 47, 0)),
    Part.ArcOfCircle(Part.Circle(App.Vector(21, 54.5, 0), App.Vector(0, 0, 1), 7.5), math.radians(180), math.radians(270)),
    Part.LineSegment(App.Vector(13.5, 54.5, 0), App.Vector(21, 54.5, 0)),
    Part.Circle(App.Vector(18.6, 52.1, 0), App.Vector(0, 0, 1), 1.5),
], False)
sketch16.addConstraint([
    Sketcher.Constraint("Coincident", 0, 2, 1, 2),
    Sketcher.Constraint("Coincident", 1, 1, 2, 1),
    Sketcher.Constraint("Coincident", 2, 2, 0, 1),
    Sketcher.Constraint("Vertical", 0),
    Sketcher.Constraint("Horizontal", 2),
    Sketcher.Constraint("Coincident", 2, 2, 1, 3),
    Sketcher.Constraint("Diameter", 3, Q("3 mm")),
    Sketcher.Constraint("Radius", 1, Q("7.5 mm")),
    Sketcher.Constraint("DistanceX", -1, 1, 1, 3, Q("21 mm")),
    Sketcher.Constraint("DistanceY", -1, 1, 0, 2, Q("47 mm")),
    Sketcher.Constraint("DistanceX", -1, 1, 3, 3, Q("18.6 mm")),
    Sketcher.Constraint("DistanceY", -1, 1, 3, 3, Q("52.1 mm")),
])
sketch16.setExpression("Constraints[6]", "Params.sketch16_diameter")
sketch16.setExpression("Constraints[7]", "Params.sketch16_radius")
pad10 = doc.addObject("PartDesign::Pad", "Pad009")
body2.addObject(pad10)
pad10.Profile = sketch16
pad10.setExpression("Length", "Params.pad10_length")
doc.recompute()

mirrored2 = doc.addObject("PartDesign::Mirrored", "Mirrored001")
body2.addObject(mirrored2)
mirrored2.Originals = [pad9, pad10]
mirrored2.MirrorPlane = (doc.getObject("XZ_Plane001"), [""])
body2.Tip = mirrored2

sketch17 = doc.addObject("Sketcher::SketchObject", "Sketch016")
body2.addObject(sketch17)
sketch17.AttachmentSupport = (doc.getObject("XY_Plane001"), [""])
sketch17.MapMode = "FlatFace"
sketch17.AttachmentOffset = App.Placement(App.Vector(0, 0, 2), App.Rotation())
sketch17.addGeometry(Part.Circle(App.Vector(-18.6, 52.1, 0), App.Vector(0, 0, 1), 1.5), False)
sketch17.addConstraint([
    Sketcher.Constraint("Diameter", 0, Q("3 mm")),
    Sketcher.Constraint("DistanceX", 0, 3, -1, 1, Q("18.6 mm")),
    Sketcher.Constraint("DistanceY", -1, 1, 0, 3, Q("52.1 mm")),
])
sketch17.setExpression("Constraints[0]", "Params.sketch17_diameter")
pocket7 = doc.addObject("PartDesign::Pocket", "Pocket006")
body2.addObject(pocket7)
pocket7.Profile = sketch17
pocket7.setExpression("Length", "Params.pocket7_length")

sketch18 = doc.addObject("Sketcher::SketchObject", "Sketch017")
body2.addObject(sketch18)
sketch18.AttachmentSupport = (doc.getObject("XY_Plane001"), [""])
sketch18.MapMode = "FlatFace"
sketch18.AttachmentOffset = App.Placement(App.Vector(0, 0, 2), App.Rotation())
sketch18.addGeometry(Part.Circle(App.Vector(18.6, 52.1, 0), App.Vector(0, 0, 1), 1.5), False)
sketch18.addConstraint([
    Sketcher.Constraint("Diameter", 0, Q("3 mm")),
    Sketcher.Constraint("DistanceX", -1, 1, 0, 3, Q("18.6 mm")),
    Sketcher.Constraint("DistanceY", -1, 1, 0, 3, Q("52.1 mm")),
])
sketch18.setExpression("Constraints[0]", "Params.sketch18_diameter")
pocket8 = doc.addObject("PartDesign::Pocket", "Pocket007")
body2.addObject(pocket8)
pocket8.Profile = sketch18
pocket8.setExpression("Length", "Params.pocket8_length")
doc.recompute()

mirrored3 = doc.addObject("PartDesign::Mirrored", "Mirrored002")
body2.addObject(mirrored3)
mirrored3.Originals = [pocket7, pocket8]
mirrored3.MirrorPlane = (doc.getObject("XZ_Plane001"), [""])
body2.Tip = mirrored3
doc.recompute()

fillet2 = doc.addObject("PartDesign::Fillet", "Fillet001")
body2.addObject(fillet2)
fillet2.Base = (mirrored3, edges_at(mirrored3, [
    (24.5, 0, 0),
    (23.328, 56.828, 0),
    (0, 58, 0),
    (-23.328, 56.828, 0),
    (-24.5, 0, 0),
    (-23.328, -56.828, 0),
    (0, -58, 0),
    (23.328, -56.828, 0),
]))
fillet2.setExpression("Radius", "Params.fillet2_radius")
doc.recompute()

chamfer = doc.addObject("PartDesign::Chamfer", "Chamfer")
body2.addObject(chamfer)
chamfer.Base = (fillet2, edges_at(fillet2, [
    (20.1, 52.1, 0),
    (-20.1, 52.1, 0),
    (-20.1, -52.1, 0),
    (20.1, -52.1, 0),
]))
chamfer.setExpression("Size", "Params.chamfer_size")

sketch19 = doc.addObject("Sketcher::SketchObject", "Sketch018")
body2.addObject(sketch19)
sketch19.AttachmentSupport = (doc.getObject("XY_Plane001"), [""])
sketch19.MapMode = "FlatFace"
sketch19.AttachmentOffset = App.Placement(App.Vector(0, 0, 2), App.Rotation())
sketch19.addGeometry([
    Part.Circle(App.Vector(0, 0, 0), App.Vector(0, 0, 1), 2.5),
    Part.Circle(App.Vector(0, 6.2, 0), App.Vector(0, 0, 1), 1.3),
    Part.Circle(App.Vector(6.2, 0, 0), App.Vector(0, 0, 1), 1.3),
    Part.Circle(App.Vector(0, -6.2, 0), App.Vector(0, 0, 1), 1.3),
    Part.Circle(App.Vector(-6.2, 0, 0), App.Vector(0, 0, 1), 1.3),
    Part.Circle(App.Vector(0, -29, 0), App.Vector(0, 0, 1), 3),
], False)
sketch19.addConstraint([
    Sketcher.Constraint("Coincident", 0, 3, -1, 1),
    Sketcher.Constraint("Equal", 1, 2),
    Sketcher.Constraint("Equal", 2, 3),
    Sketcher.Constraint("Equal", 3, 4),
    Sketcher.Constraint("Symmetric", 1, 3, 3, 3, -1, 1),
    Sketcher.Constraint("Symmetric", 2, 3, 4, 3, -1, 1),
    Sketcher.Constraint("PointOnObject", 1, 3, -2),
    Sketcher.Constraint("PointOnObject", 2, 3, -1),
    Sketcher.Constraint("PointOnObject", 5, 3, -2),
    Sketcher.Constraint("Diameter", 0, Q("5 mm")),
    Sketcher.Constraint("Diameter", 5, Q("6 mm")),
    Sketcher.Constraint("Diameter", 1, Q("2.58 mm")),
    Sketcher.Constraint("DistanceY", 5, 3, -1, 1, Q("29 mm")),
    Sketcher.Constraint("DistanceY", 3, 3, 1, 3, Q("12.3037 mm")),
    Sketcher.Constraint("DistanceX", 4, 3, 2, 3, Q("12.3037 mm")),
])
sketch19.setExpression("Constraints[9]", "Params.sketch19_diameter")
sketch19.setExpression("Constraints[10]", "Params.sketch19_diameter2")
sketch19.setExpression("Constraints[11]", "Params.sketch19_diameter3")
pocket9 = doc.addObject("PartDesign::Pocket", "Pocket008")
body2.addObject(pocket9)
pocket9.Profile = sketch19
pocket9.setExpression("Length", "Params.pocket9_length")

doc.recompute()
